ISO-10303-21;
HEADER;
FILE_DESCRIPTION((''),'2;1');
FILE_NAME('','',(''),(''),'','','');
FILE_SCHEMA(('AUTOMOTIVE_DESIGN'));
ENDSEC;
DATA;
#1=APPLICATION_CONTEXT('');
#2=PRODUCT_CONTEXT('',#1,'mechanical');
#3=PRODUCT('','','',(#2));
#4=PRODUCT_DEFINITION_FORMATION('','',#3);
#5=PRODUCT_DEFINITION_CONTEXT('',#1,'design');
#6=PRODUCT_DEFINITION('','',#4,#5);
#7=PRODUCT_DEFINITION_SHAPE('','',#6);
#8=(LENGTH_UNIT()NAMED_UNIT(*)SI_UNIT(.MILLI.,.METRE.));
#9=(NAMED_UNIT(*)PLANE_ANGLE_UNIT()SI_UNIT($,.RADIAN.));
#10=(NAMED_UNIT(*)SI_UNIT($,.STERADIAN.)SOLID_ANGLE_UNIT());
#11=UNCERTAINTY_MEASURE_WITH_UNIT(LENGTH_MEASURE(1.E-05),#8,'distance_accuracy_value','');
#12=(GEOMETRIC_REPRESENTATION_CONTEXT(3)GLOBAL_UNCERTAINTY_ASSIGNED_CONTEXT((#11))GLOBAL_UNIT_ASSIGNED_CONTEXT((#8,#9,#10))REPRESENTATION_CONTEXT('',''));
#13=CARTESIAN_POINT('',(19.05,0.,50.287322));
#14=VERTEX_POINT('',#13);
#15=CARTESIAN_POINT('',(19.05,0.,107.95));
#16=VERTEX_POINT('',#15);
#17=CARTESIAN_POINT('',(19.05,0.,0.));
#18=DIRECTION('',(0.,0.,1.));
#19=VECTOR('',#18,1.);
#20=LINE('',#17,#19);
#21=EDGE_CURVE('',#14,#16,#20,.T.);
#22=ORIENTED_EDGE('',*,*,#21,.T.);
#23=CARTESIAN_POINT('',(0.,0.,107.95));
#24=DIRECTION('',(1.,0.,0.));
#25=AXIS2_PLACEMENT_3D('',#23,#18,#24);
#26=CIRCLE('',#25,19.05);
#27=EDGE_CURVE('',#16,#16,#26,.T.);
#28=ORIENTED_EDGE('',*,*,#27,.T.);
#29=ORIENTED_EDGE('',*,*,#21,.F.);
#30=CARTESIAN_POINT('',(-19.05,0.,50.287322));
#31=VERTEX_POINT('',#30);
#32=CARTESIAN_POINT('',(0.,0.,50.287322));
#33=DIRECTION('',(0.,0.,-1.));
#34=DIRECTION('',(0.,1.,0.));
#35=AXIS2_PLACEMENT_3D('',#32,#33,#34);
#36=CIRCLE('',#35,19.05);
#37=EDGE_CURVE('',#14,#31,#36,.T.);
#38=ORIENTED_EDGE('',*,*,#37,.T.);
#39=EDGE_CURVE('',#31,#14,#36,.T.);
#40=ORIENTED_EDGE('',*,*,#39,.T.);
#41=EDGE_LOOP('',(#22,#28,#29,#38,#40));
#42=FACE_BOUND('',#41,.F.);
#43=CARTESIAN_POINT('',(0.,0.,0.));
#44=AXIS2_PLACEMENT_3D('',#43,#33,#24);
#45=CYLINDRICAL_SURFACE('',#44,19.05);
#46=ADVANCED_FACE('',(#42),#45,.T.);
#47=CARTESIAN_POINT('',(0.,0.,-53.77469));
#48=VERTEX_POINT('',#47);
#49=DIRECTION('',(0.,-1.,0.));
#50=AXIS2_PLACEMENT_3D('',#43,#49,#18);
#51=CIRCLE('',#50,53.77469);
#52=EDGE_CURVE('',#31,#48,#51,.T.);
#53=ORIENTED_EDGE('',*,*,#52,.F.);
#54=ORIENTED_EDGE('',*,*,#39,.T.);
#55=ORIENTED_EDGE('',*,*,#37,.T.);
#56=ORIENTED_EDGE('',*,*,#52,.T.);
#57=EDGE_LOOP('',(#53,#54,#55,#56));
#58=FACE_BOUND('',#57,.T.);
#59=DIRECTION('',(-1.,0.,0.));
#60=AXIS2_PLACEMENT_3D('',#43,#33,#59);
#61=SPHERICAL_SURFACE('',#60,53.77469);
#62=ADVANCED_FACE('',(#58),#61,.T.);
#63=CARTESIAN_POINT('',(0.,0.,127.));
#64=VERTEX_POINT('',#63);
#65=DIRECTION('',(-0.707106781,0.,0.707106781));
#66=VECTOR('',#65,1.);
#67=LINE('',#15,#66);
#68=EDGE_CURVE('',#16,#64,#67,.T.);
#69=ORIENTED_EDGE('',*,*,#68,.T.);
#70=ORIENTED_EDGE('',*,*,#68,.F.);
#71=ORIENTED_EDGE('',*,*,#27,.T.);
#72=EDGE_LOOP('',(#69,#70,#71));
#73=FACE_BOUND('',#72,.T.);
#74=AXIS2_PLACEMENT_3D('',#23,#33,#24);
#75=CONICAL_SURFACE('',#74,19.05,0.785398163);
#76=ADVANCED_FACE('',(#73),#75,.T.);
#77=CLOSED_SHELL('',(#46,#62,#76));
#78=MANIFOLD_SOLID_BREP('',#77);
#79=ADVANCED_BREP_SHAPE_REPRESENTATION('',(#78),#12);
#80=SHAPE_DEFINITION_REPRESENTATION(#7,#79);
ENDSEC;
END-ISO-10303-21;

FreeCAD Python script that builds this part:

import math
import FreeCAD as App
import Part
import Sketcher
Q = App.Units.Quantity


def edges_at(feature, points):
    """Names of the edges that pass closest to the given points."""
    edges = feature.Shape.Edges
    near = lambda p: min(range(len(edges)), key=lambda i: edges[i].distToShape(Part.Vertex(*p))[0])
    return sorted({f"Edge{near(p) + 1}" for p in points})

doc = App.newDocument("Part")
params = doc.addObject("Spreadsheet::Sheet", "Params")
for row, (alias, value) in enumerate([
    ("revolution_angle", "360 deg"),
    ("sketch2_diameter", "1.5 in"),
    ("pad1_length", "1 in"),
    ("sketch3_diameter", "1.5 in"),
    ("pad2_length", "5 in"),
    ("chamfer_size", "0.75 in"),
], start=1):
    params.set(f"A{row}", alias)
    params.set(f"B{row}", "=" + value)
    params.setAlias(f"B{row}", alias)

body = doc.addObject("PartDesign::Body", "Body")

# Sketch on XZ plane
sketch1 = body.newObject("Sketcher::SketchObject", "Sketch")
sketch1.AttachmentSupport = (doc.getObject("XZ_Plane"), [""])
sketch1.MapMode = "FlatFace"
sketch1.addGeometry([
    Part.ArcOfCircle(Part.Circle(App.Vector(0, 0, 0), App.Vector(0, 0, 1), 54), math.radians(90), math.radians(270)),
    Part.LineSegment(App.Vector(0, -54, 0), App.Vector(0, 54, 0)),
], False)
sketch1.addConstraint([
    Sketcher.Constraint("Coincident", 0, 1, 1, 2),
    Sketcher.Constraint("Coincident", 1, 1, 0, 2),
    Sketcher.Constraint("Vertical", 1),
    Sketcher.Constraint("Coincident", 0, 3, -1, 1),
    Sketcher.Constraint("PointOnObject", 0, 1, -2),
    Sketcher.Constraint("Radius", 0, 53.77469),
])
revolution = body.newObject("PartDesign::Revolution", "Revolution")
revolution.Profile = sketch1
revolution.ReferenceAxis = (sketch1, ["V_Axis"])
revolution.setExpression("Angle", "Params.revolution_angle")
body2 = doc.addObject("PartDesign::Body", "Body001")

# Sketch on XY plane
sketch2 = body2.newObject("Sketcher::SketchObject", "Sketch001")
sketch2.AttachmentSupport = (doc.getObject("XY_Plane001"), [""])
sketch2.MapMode = "FlatFace"
sketch2.addGeometry(Part.Circle(App.Vector(0, 0, 0), App.Vector(0, 0, 1), 19), False)
sketch2.addConstraint([
    Sketcher.Constraint("Coincident", 0, 3, -1, 1),
    Sketcher.Constraint("Diameter", 0, Q("1.5 in")),
])
sketch2.setExpression("Constraints[1]", "Params.sketch2_diameter")
pad1 = body2.newObject("PartDesign::Pad", "Pad")
pad1.Profile = sketch2
pad1.setExpression("Length", "Params.pad1_length")
pad1.Reversed = True
doc.recompute()

boolean = body.newObject("PartDesign::Boolean", "Boolean")
boolean.Type = "Fuse"
boolean.addObjects([body2])

# Sketch on XY plane
sketch3 = body.newObject("Sketcher::SketchObject", "Sketch002")
sketch3.AttachmentSupport = (doc.getObject("XY_Plane"), [""])
sketch3.MapMode = "FlatFace"
sketch3.addGeometry(Part.Circle(App.Vector(0, 0, 0), App.Vector(0, 0, 1), 19), False)
sketch3.addConstraint([
    Sketcher.Constraint("Coincident", 0, 3, -1, 1),
    Sketcher.Constraint("Diameter", 0, Q("1.5 in")),
])
sketch3.setExpression("Constraints[1]", "Params.sketch3_diameter")
pad2 = body.newObject("PartDesign::Pad", "Pad001")
pad2.Profile = sketch3
pad2.setExpression("Length", "Params.pad2_length")
doc.recompute()

chamfer = body.newObject("PartDesign::Chamfer", "Chamfer")
chamfer.Base = (pad2, edges_at(pad2, [(-19.05, 0, 127)]))
chamfer.setExpression("Size", "Params.chamfer_size")

doc.recompute()
